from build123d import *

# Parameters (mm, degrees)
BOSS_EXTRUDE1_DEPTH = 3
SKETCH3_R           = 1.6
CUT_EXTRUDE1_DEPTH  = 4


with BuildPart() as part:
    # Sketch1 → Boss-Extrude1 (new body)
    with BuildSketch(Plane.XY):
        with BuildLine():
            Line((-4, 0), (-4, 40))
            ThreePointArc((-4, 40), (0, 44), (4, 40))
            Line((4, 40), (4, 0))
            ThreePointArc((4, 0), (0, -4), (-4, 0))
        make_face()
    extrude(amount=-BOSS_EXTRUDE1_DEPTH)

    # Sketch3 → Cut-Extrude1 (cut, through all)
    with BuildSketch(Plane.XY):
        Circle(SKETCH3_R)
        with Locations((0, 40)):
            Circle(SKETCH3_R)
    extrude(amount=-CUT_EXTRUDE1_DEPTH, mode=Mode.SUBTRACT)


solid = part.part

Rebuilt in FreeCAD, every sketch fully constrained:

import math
import FreeCAD as App
import Part
import Sketcher
from FreeCAD import Vector
Q = App.Units.Quantity

doc = App.newDocument("Part")
body = doc.addObject("PartDesign::Body", "Body")

# Sketch on XY plane
sketch1 = body.newObject("Sketcher::SketchObject", "Sketch")
sketch1.AttachmentSupport = (doc.getObject("XY_Plane"), [""])
sketch1.MapMode = "FlatFace"
sketch1.addGeometry(Part.LineSegment(Vector(-4, 40, 0), Vector(-4, 0, 0)), False)
sketch1.addGeometry(Part.ArcOfCircle(Part.Circle(Vector(0, 0, 0), Vector(0, 0, 1), 4), math.radians(180), math.radians(360)), False)
sketch1.addGeometry(Part.LineSegment(Vector(4, 0, 0), Vector(4, 40, 0)), False)
sketch1.addGeometry(Part.ArcOfCircle(Part.Circle(Vector(0, 40, 0), Vector(0, 0, 1), 4), math.radians(0), math.radians(180)), False)
sketch1.addConstraint(Sketcher.Constraint("Tangent", 0, 2, 1, 1))
sketch1.addConstraint(Sketcher.Constraint("Tangent", 1, 2, 2, 1))
sketch1.addConstraint(Sketcher.Constraint("Tangent", 2, 2, 3, 1))
sketch1.addConstraint(Sketcher.Constraint("Tangent", 3, 2, 0, 1))
sketch1.addConstraint(Sketcher.Constraint("Vertical", 0))
sketch1.addConstraint(Sketcher.Constraint("Vertical", 2))
sketch1.addConstraint(Sketcher.Constraint("Coincident", 1, 3, -1, 1))
sketch1.addConstraint(Sketcher.Constraint("Radius", 1, Q("4 mm")))
sketch1.addConstraint(Sketcher.Constraint("DistanceY", 0, 2, 0, 1, Q("40 mm")))
pad1 = body.newObject("PartDesign::Pad", "Pad")
pad1.Profile = sketch1
pad1.Length = 3
pad1.Reversed = True

# Sketch on XY plane
sketch2 = body.newObject("Sketcher::SketchObject", "Sketch001")
sketch2.AttachmentSupport = (doc.getObject("XY_Plane"), [""])
sketch2.MapMode = "FlatFace"
sketch2.addGeometry(Part.Circle(Vector(0, 0, 0), Vector(0, 0, 1), 1.6), False)
sketch2.addGeometry(Part.Circle(Vector(0, 40, 0), Vector(0, 0, 1), 1.6), False)
sketch2.addConstraint(Sketcher.Constraint("Coincident", 0, 3, -1, 1))
sketch2.addConstraint(Sketcher.Constraint("Equal", 0, 1))
sketch2.addConstraint(Sketcher.Constraint("PointOnObject", 1, 3, -2))
sketch2.addConstraint(Sketcher.Constraint("Diameter", 0, Q("3.2 mm")))
sketch2.addConstraint(Sketcher.Constraint("DistanceY", -1, 1, 1, 3, Q("40 mm")))
pocket1 = body.newObject("PartDesign::Pocket", "Pocket")
pocket1.Profile = sketch2
pocket1.Type = "ThroughAll"

doc.recompute()
